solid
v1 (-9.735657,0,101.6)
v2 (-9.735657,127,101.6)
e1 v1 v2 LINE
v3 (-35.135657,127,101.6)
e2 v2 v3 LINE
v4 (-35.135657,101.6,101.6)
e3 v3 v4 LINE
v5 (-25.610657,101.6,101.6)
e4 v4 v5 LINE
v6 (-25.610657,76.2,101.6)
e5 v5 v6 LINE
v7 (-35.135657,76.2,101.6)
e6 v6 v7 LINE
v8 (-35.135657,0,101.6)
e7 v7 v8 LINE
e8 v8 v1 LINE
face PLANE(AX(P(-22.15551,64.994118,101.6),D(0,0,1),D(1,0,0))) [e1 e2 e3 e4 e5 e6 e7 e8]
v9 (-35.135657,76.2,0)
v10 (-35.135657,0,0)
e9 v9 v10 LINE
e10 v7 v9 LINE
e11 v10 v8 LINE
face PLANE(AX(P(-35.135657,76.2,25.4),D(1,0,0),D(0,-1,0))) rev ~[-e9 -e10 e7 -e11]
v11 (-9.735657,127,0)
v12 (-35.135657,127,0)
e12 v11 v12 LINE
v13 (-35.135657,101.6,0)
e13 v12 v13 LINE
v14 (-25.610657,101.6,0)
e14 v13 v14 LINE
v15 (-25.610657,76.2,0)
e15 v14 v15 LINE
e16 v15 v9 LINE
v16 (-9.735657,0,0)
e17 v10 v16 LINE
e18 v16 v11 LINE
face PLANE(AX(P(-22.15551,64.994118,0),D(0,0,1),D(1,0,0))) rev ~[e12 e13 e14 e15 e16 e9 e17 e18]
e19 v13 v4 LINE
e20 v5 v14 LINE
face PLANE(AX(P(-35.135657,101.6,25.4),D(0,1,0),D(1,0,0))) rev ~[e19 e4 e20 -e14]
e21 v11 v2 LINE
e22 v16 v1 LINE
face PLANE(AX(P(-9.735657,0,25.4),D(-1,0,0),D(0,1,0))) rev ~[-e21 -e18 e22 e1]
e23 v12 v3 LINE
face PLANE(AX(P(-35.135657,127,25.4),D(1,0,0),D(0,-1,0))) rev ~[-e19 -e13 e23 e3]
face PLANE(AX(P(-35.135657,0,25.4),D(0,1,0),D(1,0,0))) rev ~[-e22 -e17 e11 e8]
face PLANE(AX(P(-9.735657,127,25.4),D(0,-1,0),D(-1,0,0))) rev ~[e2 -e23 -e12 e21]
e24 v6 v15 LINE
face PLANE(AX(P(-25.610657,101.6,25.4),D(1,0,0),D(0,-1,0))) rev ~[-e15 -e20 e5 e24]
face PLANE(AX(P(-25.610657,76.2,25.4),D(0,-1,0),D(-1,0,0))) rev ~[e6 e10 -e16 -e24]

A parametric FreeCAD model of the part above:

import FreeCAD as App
import Part
import Sketcher
Q = App.Units.Quantity


def add_polygon(sketch, points):
    """Adds a closed chain of lines whose ends are joined by coincident constraints."""
    first, n = sketch.GeometryCount, len(points)
    for a, b in zip(points, points[1:] + points[:1]):
        sketch.addGeometry(Part.LineSegment(App.Vector(*a, 0), App.Vector(*b, 0)), False)
    for i in range(n):
        sketch.addConstraint(Sketcher.Constraint("Coincident", first + i, 2, first + (i + 1) % n, 1))

doc = App.newDocument("Part")
params = doc.addObject("Spreadsheet::Sheet", "Params")
for row, (alias, value) in enumerate([
    ("sketch1_width", "1 in"),
    ("sketch1_height", "5 in"),
    ("sketch1_width2", "0.375 in"),
    ("pad1_length", "1 in"),
    ("sketch2_width", "1 in"),
    ("sketch2_height", "3 in"),
    ("sketch2_width2", "0.375 in"),
    ("pad2_length", "3 in"),
], start=1):
    params.set(f"A{row}", alias)
    params.set(f"B{row}", "=" + value)
    params.setAlias(f"B{row}", alias)

body = doc.addObject("PartDesign::Body", "Body")

# Sketch on XY plane
sketch1 = body.newObject("Sketcher::SketchObject", "Sketch")
sketch1.AttachmentSupport = (doc.getObject("XY_Plane"), [""])
sketch1.MapMode = "FlatFace"
add_polygon(sketch1, [(-35, 0), (-10, 0), (-10, 127), (-35, 127), (-35, 102), (-26, 102), (-26, 76), (-35, 76)])  # lines 0-7
sketch1.addConstraint(Sketcher.Constraint("Horizontal", 0))
sketch1.addConstraint(Sketcher.Constraint("Vertical", 1))
sketch1.addConstraint(Sketcher.Constraint("Horizontal", 2))
sketch1.addConstraint(Sketcher.Constraint("Vertical", 3))
sketch1.addConstraint(Sketcher.Constraint("Horizontal", 4))
sketch1.addConstraint(Sketcher.Constraint("Vertical", 5))
sketch1.addConstraint(Sketcher.Constraint("Horizontal", 6))
sketch1.addConstraint(Sketcher.Constraint("Vertical", 7))
sketch1.addConstraint(Sketcher.Constraint("PointOnObject", 0, 2, -1))
sketch1.addConstraint(Sketcher.Constraint("Vertical", 3, 2, 6, 2))
sketch1.addConstraint(Sketcher.Constraint("Equal", 2, 3))
sketch1.addConstraint(Sketcher.Constraint("Equal", 3, 5))
sketch1.addConstraint(Sketcher.Constraint("DistanceX", 0, 1, 0, 2, Q("1 in")))
sketch1.addConstraint(Sketcher.Constraint("DistanceY", 1, 1, 1, 2, Q("5 in")))
sketch1.addConstraint(Sketcher.Constraint("DistanceX", 4, 1, 4, 2, Q("0.375 in")))
sketch1.addConstraint(Sketcher.Constraint("DistanceX", 0, 2, -1, 1, Q("9.735657 mm")))
sketch1.setExpression("Constraints[20]", "Params.sketch1_width")
sketch1.setExpression("Constraints[21]", "Params.sketch1_height")
sketch1.setExpression("Constraints[22]", "Params.sketch1_width2")
pad1 = body.newObject("PartDesign::Pad", "Pad")
pad1.Profile = sketch1
pad1.setExpression("Length", "Params.pad1_length")

# Sketch on XY plane
sketch2 = body.newObject("Sketcher::SketchObject", "Sketch001")
sketch2.AttachmentSupport = (doc.getObject("XY_Plane"), [""])
sketch2.MapMode = "FlatFace"
sketch2.AttachmentOffset = App.Placement(App.Vector(0, 0, 1 * 25.4), App.Rotation())
add_polygon(sketch2, [(-35, 76), (-35, 0), (-10, 0), (-10, 127), (-35, 127), (-35, 102), (-26, 102), (-26, 76)])  # lines 0-7
sketch2.addConstraint(Sketcher.Constraint("Vertical", 0))
sketch2.addConstraint(Sketcher.Constraint("Horizontal", 1))
sketch2.addConstraint(Sketcher.Constraint("Vertical", 2))
sketch2.addConstraint(Sketcher.Constraint("Horizontal", 3))
sketch2.addConstraint(Sketcher.Constraint("Vertical", 4))
sketch2.addConstraint(Sketcher.Constraint("Horizontal", 5))
sketch2.addConstraint(Sketcher.Constraint("Vertical", 6))
sketch2.addConstraint(Sketcher.Constraint("Horizontal", 7))
sketch2.addConstraint(Sketcher.Constraint("PointOnObject", 0, 2, -1))
sketch2.addConstraint(Sketcher.Constraint("Vertical", 0, 2, 3, 2))
sketch2.addConstraint(Sketcher.Constraint("Equal", 3, 4))
sketch2.addConstraint(Sketcher.Constraint("Equal", 4, 6))
sketch2.addConstraint(Sketcher.Constraint("DistanceX", 1, 1, 1, 2, Q("1 in")))
sketch2.addConstraint(Sketcher.Constraint("DistanceY", 0, 2, 0, 1, Q("3 in")))
sketch2.addConstraint(Sketcher.Constraint("DistanceX", 5, 1, 5, 2, Q("0.375 in")))
sketch2.addConstraint(Sketcher.Constraint("DistanceX", 0, 2, -1, 1, Q("35.135657 mm")))
sketch2.setExpression("Constraints[20]", "Params.sketch2_width")
sketch2.setExpression("Constraints[21]", "Params.sketch2_height")
sketch2.setExpression("Constraints[22]", "Params.sketch2_width2")
pad2 = body.newObject("PartDesign::Pad", "Pad001")
pad2.Profile = sketch2
pad2.setExpression("Length", "Params.pad2_length")

doc.recompute()
